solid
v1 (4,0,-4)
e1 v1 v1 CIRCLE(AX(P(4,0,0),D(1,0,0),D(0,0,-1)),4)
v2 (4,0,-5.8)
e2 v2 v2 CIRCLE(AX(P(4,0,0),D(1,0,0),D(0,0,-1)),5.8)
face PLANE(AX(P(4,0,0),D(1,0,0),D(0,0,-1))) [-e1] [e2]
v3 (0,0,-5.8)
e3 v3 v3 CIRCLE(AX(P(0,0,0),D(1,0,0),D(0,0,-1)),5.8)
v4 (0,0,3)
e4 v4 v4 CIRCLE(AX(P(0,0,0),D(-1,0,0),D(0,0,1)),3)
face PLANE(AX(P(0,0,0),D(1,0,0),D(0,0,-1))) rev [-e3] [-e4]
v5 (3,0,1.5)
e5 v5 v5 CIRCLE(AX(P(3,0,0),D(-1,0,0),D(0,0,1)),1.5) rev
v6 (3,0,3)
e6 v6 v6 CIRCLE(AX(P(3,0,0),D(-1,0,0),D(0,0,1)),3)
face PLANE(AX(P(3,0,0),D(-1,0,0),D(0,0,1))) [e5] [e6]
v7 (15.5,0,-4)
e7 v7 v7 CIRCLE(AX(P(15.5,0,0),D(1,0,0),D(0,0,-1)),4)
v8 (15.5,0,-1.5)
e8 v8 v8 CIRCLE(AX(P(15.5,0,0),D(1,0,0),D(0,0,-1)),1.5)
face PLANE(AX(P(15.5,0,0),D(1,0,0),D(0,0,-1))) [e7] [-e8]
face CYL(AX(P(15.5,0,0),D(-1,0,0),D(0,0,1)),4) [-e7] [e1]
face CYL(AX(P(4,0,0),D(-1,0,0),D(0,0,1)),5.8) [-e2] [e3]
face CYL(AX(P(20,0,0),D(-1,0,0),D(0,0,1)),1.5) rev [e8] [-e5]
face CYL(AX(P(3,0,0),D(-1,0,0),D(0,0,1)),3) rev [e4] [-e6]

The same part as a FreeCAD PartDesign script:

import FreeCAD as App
import Part
import Sketcher

V = App.Vector

doc = App.newDocument("Part")
body = doc.addObject("PartDesign::Body", "Body")

# Sketch on YZ plane
sketch1 = body.newObject("Sketcher::SketchObject", "Sketch")
sketch1.AttachmentSupport = (doc.getObject("YZ_Plane"), [""])
sketch1.MapMode = "FlatFace"
sketch1.addGeometry(Part.Circle(V(0, 0, 0), V(0, 0, 1), 5.8), False)
sketch1.addConstraint(Sketcher.Constraint("Coincident", 0, 3, -1, 1))
sketch1.addConstraint(Sketcher.Constraint("Diameter", 0, 11.6))
pad1 = body.newObject("PartDesign::Pad", "Pad")
pad1.Profile = sketch1
pad1.Length = 4

# Sketch on YZ plane
sketch2 = body.newObject("Sketcher::SketchObject", "Sketch001")
sketch2.AttachmentSupport = (doc.getObject("YZ_Plane"), [""])
sketch2.MapMode = "FlatFace"
sketch2.AttachmentOffset = App.Placement(V(0, 0, 4), App.Rotation())
sketch2.addGeometry(Part.Circle(V(0, 0, 0), V(0, 0, 1), 4), False)
sketch2.addConstraint(Sketcher.Constraint("Coincident", 0, 3, -1, 1))
sketch2.addConstraint(Sketcher.Constraint("Diameter", 0, 8.0))
pad2 = body.newObject("PartDesign::Pad", "Pad001")
pad2.Profile = sketch2
pad2.Length = 11.5

# Sketch on YZ plane
sketch3 = body.newObject("Sketcher::SketchObject", "Sketch002")
sketch3.AttachmentSupport = (doc.getObject("YZ_Plane"), [""])
sketch3.MapMode = "FlatFace"
sketch3.addGeometry(Part.Circle(V(0, 0, 0), V(0, 0, 1), 1.5), False)
sketch3.addConstraint(Sketcher.Constraint("Coincident", 0, 3, -1, 1))
sketch3.addConstraint(Sketcher.Constraint("Diameter", 0, 3.0))
pocket1 = body.newObject("PartDesign::Pocket", "Pocket")
pocket1.Profile = sketch3
pocket1.Length = 20
pocket1.Reversed = True

# Sketch on YZ plane
sketch4 = body.newObject("Sketcher::SketchObject", "Sketch003")
sketch4.AttachmentSupport = (doc.getObject("YZ_Plane"), [""])
sketch4.MapMode = "FlatFace"
sketch4.addGeometry(Part.Circle(V(0, 0, 0), V(0, 0, 1), 3), False)
sketch4.addConstraint(Sketcher.Constraint("Coincident", 0, 3, -1, 1))
sketch4.addConstraint(Sketcher.Constraint("Diameter", 0, 6.0))
pocket2 = body.newObject("PartDesign::Pocket", "Pocket001")
pocket2.Profile = sketch4
pocket2.Length = 3
pocket2.Reversed = True

doc.recompute()
